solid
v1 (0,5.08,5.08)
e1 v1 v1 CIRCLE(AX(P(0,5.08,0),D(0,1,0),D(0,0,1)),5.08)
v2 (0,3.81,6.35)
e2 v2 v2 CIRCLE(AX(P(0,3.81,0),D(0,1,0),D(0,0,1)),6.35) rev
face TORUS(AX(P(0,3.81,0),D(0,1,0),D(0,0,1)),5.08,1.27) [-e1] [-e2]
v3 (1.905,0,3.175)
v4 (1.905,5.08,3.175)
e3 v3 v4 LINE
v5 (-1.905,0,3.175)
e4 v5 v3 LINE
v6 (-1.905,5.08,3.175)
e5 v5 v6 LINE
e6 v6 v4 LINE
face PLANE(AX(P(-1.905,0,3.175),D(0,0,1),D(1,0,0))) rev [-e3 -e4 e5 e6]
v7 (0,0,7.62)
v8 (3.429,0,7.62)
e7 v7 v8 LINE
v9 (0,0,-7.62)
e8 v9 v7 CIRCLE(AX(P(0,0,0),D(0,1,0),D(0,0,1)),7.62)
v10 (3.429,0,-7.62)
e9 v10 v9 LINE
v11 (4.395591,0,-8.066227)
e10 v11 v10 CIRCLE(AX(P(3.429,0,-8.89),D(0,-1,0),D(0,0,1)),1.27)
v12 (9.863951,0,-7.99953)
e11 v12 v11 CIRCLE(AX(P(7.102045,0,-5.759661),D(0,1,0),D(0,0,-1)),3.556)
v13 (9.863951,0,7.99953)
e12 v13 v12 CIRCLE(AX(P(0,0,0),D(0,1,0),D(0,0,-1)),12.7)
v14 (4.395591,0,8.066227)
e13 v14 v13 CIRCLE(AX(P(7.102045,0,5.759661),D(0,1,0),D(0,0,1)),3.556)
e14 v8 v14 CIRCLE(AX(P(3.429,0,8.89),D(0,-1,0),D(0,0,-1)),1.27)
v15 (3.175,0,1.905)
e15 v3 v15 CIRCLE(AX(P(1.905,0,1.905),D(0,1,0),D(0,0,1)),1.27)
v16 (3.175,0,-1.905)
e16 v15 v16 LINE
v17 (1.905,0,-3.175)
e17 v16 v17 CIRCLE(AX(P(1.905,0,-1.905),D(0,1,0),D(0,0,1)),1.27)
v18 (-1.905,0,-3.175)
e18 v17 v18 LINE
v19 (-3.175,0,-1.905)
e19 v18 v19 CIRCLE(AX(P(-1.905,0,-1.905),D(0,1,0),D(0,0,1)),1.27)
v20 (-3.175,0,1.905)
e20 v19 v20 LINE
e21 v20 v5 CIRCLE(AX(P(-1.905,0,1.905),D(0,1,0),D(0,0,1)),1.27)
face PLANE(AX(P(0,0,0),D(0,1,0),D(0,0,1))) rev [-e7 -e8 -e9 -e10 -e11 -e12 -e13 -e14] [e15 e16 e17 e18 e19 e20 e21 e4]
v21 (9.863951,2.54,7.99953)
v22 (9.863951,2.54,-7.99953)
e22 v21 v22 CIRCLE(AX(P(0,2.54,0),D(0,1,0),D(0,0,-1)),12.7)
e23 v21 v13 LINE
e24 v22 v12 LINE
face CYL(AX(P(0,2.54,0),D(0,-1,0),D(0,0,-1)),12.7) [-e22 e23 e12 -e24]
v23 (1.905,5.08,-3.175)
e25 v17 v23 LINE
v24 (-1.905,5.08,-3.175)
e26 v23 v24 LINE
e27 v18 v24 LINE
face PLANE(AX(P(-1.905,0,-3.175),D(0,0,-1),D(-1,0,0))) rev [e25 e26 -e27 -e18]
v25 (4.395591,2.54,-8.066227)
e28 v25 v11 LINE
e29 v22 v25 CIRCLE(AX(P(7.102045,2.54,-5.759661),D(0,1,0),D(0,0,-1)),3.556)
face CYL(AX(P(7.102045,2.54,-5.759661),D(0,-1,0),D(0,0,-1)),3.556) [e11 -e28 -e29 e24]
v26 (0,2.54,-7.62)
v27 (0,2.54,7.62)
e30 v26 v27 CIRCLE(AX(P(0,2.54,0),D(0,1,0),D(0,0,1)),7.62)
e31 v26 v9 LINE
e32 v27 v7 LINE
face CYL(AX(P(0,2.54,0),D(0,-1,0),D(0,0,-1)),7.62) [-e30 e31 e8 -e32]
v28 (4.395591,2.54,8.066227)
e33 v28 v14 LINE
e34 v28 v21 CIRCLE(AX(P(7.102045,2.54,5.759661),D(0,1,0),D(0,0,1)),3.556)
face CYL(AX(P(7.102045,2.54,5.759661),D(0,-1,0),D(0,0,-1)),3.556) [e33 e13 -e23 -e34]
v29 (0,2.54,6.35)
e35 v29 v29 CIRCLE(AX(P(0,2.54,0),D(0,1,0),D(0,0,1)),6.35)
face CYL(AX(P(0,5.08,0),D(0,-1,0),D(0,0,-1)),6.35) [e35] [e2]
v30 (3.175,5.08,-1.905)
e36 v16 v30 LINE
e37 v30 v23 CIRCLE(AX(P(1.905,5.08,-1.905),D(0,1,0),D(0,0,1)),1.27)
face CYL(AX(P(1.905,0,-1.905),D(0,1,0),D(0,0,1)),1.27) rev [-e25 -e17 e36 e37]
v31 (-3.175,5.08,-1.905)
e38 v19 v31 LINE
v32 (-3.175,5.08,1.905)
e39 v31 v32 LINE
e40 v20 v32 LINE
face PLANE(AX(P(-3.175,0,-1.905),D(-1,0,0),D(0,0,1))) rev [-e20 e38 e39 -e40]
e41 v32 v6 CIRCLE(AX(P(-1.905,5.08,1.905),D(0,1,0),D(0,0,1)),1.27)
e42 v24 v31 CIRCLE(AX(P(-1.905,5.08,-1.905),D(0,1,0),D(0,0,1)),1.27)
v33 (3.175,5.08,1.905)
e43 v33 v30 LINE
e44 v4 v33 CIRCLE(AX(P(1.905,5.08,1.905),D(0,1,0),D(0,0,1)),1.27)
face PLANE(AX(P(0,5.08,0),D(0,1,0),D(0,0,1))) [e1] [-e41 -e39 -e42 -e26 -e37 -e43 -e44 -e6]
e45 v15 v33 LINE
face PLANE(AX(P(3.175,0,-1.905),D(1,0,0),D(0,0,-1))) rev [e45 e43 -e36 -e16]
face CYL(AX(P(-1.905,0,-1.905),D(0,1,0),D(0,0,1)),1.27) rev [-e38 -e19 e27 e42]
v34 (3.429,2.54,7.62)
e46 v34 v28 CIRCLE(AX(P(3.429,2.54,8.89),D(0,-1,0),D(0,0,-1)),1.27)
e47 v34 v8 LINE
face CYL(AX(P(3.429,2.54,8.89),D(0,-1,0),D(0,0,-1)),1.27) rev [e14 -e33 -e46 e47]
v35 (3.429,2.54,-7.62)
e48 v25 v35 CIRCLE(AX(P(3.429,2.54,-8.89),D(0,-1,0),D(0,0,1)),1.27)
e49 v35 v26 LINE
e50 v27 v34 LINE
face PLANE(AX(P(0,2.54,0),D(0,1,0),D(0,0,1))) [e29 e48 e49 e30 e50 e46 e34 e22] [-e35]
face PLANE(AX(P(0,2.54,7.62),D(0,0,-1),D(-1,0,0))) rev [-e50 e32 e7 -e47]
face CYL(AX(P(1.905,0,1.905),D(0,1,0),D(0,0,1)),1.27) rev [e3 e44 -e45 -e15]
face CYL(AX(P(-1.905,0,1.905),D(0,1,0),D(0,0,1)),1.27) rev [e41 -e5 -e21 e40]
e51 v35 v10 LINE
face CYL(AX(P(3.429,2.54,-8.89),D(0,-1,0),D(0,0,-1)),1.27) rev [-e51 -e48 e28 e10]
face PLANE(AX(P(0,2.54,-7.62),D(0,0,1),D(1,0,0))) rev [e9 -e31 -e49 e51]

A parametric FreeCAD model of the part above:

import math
import FreeCAD as App
import Part
import Sketcher
Q = App.Units.Quantity


def edges_at(feature, points):
    """Names of the edges that pass closest to the given points."""
    edges = feature.Shape.Edges
    near = lambda p: min(range(len(edges)), key=lambda i: edges[i].distToShape(Part.Vertex(*p))[0])
    return sorted({f"Edge{near(p) + 1}" for p in points})

doc = App.newDocument("Part")
body = doc.addObject("PartDesign::Body", "Body")

sketch1 = body.newObject("Sketcher::SketchObject", "Sketch")
sketch1.AttachmentSupport = (doc.getObject("XZ_Plane"), [""])
sketch1.MapMode = "FlatFace"
sketch1.addGeometry(Part.Circle(App.Vector(0, 0, 0), App.Vector(0, 0, 1), 6.35), False)
sketch1.addConstraint([
    Sketcher.Constraint("Coincident", 0, 3, -1, 1),
    Sketcher.Constraint("Diameter", 0, Q("0.5 in")),
])
pad1 = body.newObject("PartDesign::Pad", "Pad")
pad1.Profile = sketch1
pad1.Length = Q("0.2 in")
pad1.Reversed = True

sketch2 = body.newObject("Sketcher::SketchObject", "Sketch001")
sketch2.AttachmentSupport = (doc.getObject("XZ_Plane"), [""])
sketch2.MapMode = "FlatFace"
sketch2.addGeometry([
    Part.LineSegment(App.Vector(3.429, -7.62, 0), App.Vector(0, -7.62, 0)),
    Part.ArcOfCircle(Part.Circle(App.Vector(0, 0, 0), App.Vector(0, 0, 1), 7.62), math.radians(90), math.radians(270)),
    Part.LineSegment(App.Vector(0, 7.62, 0), App.Vector(3.429, 7.62, 0)),
    Part.ArcOfCircle(Part.Circle(App.Vector(3.429, 8.89, 0), App.Vector(0, 0, 1), 1.27), math.radians(-90), math.radians(-40.439173)),
    Part.ArcOfCircle(Part.Circle(App.Vector(7.102045, 5.759661, 0), App.Vector(0, 0, 1), 3.556), math.radians(39.041582), math.radians(139.560827)),
    Part.ArcOfCircle(Part.Circle(App.Vector(0, 0, 0), App.Vector(0, 0, 1), 12.7), math.radians(-39.041582), math.radians(39.041582)),
    Part.ArcOfCircle(Part.Circle(App.Vector(7.102045, -5.759661, 0), App.Vector(0, 0, 1), 3.556), math.radians(-139.560827), math.radians(-39.041582)),
    Part.ArcOfCircle(Part.Circle(App.Vector(3.429, -8.89, 0), App.Vector(0, 0, 1), 1.27), math.radians(40.439173), math.radians(90)),
], False)
sketch2.addConstraint([
    Sketcher.Constraint("Tangent", 0, 2, 1, 2),
    Sketcher.Constraint("Tangent", 1, 1, 2, 1),
    Sketcher.Constraint("Tangent", 2, 2, 3, 1),
    Sketcher.Constraint("Tangent", 3, 2, 4, 2),
    Sketcher.Constraint("Tangent", 4, 1, 5, 2),
    Sketcher.Constraint("Tangent", 5, 1, 6, 2),
    Sketcher.Constraint("Tangent", 6, 1, 7, 1),
    Sketcher.Constraint("Tangent", 7, 2, 0, 1),
    Sketcher.Constraint("Horizontal", 0),
    Sketcher.Constraint("Horizontal", 2),
    Sketcher.Constraint("Coincident", 1, 3, -1, 1),
    Sketcher.Constraint("Coincident", 5, 3, -1, 1),
    Sketcher.Constraint("Equal", 4, 6),
    Sketcher.Constraint("Equal", 3, 7),
    Sketcher.Constraint("Vertical", 4, 3, 6, 3),
    Sketcher.Constraint("Radius", 1, Q("0.3 in")),
    Sketcher.Constraint("Radius", 5, Q("0.5 in")),
    Sketcher.Constraint("Radius", 3, Q("0.05 in")),
    Sketcher.Constraint("Radius", 4, Q("0.14 in")),
    Sketcher.Constraint("DistanceX", 0, 2, 0, 1, Q("0.135 in")),
])
pad2 = body.newObject("PartDesign::Pad", "Pad001")
pad2.Profile = sketch2
pad2.Length = Q("0.1 in")
pad2.Reversed = True

sketch3 = body.newObject("Sketcher::SketchObject", "Sketch002")
sketch3.AttachmentSupport = (doc.getObject("XZ_Plane"), [""])
sketch3.MapMode = "FlatFace"
sketch3.AttachmentOffset = App.Placement(App.Vector(0, 0, -0.2 * 25.4), App.Rotation())
sketch3.addGeometry([
    Part.LineSegment(App.Vector(1.905, -3.175, 0), App.Vector(-1.905, -3.175, 0)),
    Part.ArcOfCircle(Part.Circle(App.Vector(-1.905, -1.905, 0), App.Vector(0, 0, 1), 1.27), math.radians(180), math.radians(270)),
    Part.LineSegment(App.Vector(-3.175, -1.905, 0), App.Vector(-3.175, 1.905, 0)),
    Part.ArcOfCircle(Part.Circle(App.Vector(-1.905, 1.905, 0), App.Vector(0, 0, 1), 1.27), math.radians(90), math.radians(180)),
    Part.LineSegment(App.Vector(-1.905, 3.175, 0), App.Vector(1.905, 3.175, 0)),
    Part.ArcOfCircle(Part.Circle(App.Vector(1.905, 1.905, 0), App.Vector(0, 0, 1), 1.27), math.radians(0), math.radians(90)),
    Part.LineSegment(App.Vector(3.175, 1.905, 0), App.Vector(3.175, -1.905, 0)),
    Part.ArcOfCircle(Part.Circle(App.Vector(1.905, -1.905, 0), App.Vector(0, 0, 1), 1.27), math.radians(-90), math.radians(0)),
], False)
sketch3.addConstraint([
    Sketcher.Constraint("Tangent", 0, 2, 1, 2),
    Sketcher.Constraint("Tangent", 1, 1, 2, 1),
    Sketcher.Constraint("Tangent", 2, 2, 3, 2),
    Sketcher.Constraint("Tangent", 3, 1, 4, 1),
    Sketcher.Constraint("Tangent", 4, 2, 5, 2),
    Sketcher.Constraint("Tangent", 5, 1, 6, 1),
    Sketcher.Constraint("Tangent", 6, 2, 7, 2),
    Sketcher.Constraint("Tangent", 7, 1, 0, 1),
    Sketcher.Constraint("Horizontal", 0),
    Sketcher.Constraint("Vertical", 2),
    Sketcher.Constraint("Horizontal", 4),
    Sketcher.Constraint("Vertical", 6),
    Sketcher.Constraint("Equal", 1, 3),
    Sketcher.Constraint("Equal", 3, 5),
    Sketcher.Constraint("Equal", 5, 7),
    Sketcher.Constraint("Symmetric", 1, 3, 5, 3, -1, 1),
    Sketcher.Constraint("Equal", 4, 2),
    Sketcher.Constraint("Radius", 1, Q("0.05 in")),
    Sketcher.Constraint("DistanceX", 0, 2, 0, 1, Q("0.15 in")),
])
pocket1 = body.newObject("PartDesign::Pocket", "Pocket")
pocket1.Profile = sketch3
pocket1.Type = "ThroughAll"
pocket1.Reversed = True
doc.recompute()

fillet = body.newObject("PartDesign::Fillet", "Fillet")
fillet.Base = (pocket1, edges_at(pocket1, [(-6.35, 5.08, 0)]))
fillet.Radius = Q("0.05 in")

doc.recompute()
